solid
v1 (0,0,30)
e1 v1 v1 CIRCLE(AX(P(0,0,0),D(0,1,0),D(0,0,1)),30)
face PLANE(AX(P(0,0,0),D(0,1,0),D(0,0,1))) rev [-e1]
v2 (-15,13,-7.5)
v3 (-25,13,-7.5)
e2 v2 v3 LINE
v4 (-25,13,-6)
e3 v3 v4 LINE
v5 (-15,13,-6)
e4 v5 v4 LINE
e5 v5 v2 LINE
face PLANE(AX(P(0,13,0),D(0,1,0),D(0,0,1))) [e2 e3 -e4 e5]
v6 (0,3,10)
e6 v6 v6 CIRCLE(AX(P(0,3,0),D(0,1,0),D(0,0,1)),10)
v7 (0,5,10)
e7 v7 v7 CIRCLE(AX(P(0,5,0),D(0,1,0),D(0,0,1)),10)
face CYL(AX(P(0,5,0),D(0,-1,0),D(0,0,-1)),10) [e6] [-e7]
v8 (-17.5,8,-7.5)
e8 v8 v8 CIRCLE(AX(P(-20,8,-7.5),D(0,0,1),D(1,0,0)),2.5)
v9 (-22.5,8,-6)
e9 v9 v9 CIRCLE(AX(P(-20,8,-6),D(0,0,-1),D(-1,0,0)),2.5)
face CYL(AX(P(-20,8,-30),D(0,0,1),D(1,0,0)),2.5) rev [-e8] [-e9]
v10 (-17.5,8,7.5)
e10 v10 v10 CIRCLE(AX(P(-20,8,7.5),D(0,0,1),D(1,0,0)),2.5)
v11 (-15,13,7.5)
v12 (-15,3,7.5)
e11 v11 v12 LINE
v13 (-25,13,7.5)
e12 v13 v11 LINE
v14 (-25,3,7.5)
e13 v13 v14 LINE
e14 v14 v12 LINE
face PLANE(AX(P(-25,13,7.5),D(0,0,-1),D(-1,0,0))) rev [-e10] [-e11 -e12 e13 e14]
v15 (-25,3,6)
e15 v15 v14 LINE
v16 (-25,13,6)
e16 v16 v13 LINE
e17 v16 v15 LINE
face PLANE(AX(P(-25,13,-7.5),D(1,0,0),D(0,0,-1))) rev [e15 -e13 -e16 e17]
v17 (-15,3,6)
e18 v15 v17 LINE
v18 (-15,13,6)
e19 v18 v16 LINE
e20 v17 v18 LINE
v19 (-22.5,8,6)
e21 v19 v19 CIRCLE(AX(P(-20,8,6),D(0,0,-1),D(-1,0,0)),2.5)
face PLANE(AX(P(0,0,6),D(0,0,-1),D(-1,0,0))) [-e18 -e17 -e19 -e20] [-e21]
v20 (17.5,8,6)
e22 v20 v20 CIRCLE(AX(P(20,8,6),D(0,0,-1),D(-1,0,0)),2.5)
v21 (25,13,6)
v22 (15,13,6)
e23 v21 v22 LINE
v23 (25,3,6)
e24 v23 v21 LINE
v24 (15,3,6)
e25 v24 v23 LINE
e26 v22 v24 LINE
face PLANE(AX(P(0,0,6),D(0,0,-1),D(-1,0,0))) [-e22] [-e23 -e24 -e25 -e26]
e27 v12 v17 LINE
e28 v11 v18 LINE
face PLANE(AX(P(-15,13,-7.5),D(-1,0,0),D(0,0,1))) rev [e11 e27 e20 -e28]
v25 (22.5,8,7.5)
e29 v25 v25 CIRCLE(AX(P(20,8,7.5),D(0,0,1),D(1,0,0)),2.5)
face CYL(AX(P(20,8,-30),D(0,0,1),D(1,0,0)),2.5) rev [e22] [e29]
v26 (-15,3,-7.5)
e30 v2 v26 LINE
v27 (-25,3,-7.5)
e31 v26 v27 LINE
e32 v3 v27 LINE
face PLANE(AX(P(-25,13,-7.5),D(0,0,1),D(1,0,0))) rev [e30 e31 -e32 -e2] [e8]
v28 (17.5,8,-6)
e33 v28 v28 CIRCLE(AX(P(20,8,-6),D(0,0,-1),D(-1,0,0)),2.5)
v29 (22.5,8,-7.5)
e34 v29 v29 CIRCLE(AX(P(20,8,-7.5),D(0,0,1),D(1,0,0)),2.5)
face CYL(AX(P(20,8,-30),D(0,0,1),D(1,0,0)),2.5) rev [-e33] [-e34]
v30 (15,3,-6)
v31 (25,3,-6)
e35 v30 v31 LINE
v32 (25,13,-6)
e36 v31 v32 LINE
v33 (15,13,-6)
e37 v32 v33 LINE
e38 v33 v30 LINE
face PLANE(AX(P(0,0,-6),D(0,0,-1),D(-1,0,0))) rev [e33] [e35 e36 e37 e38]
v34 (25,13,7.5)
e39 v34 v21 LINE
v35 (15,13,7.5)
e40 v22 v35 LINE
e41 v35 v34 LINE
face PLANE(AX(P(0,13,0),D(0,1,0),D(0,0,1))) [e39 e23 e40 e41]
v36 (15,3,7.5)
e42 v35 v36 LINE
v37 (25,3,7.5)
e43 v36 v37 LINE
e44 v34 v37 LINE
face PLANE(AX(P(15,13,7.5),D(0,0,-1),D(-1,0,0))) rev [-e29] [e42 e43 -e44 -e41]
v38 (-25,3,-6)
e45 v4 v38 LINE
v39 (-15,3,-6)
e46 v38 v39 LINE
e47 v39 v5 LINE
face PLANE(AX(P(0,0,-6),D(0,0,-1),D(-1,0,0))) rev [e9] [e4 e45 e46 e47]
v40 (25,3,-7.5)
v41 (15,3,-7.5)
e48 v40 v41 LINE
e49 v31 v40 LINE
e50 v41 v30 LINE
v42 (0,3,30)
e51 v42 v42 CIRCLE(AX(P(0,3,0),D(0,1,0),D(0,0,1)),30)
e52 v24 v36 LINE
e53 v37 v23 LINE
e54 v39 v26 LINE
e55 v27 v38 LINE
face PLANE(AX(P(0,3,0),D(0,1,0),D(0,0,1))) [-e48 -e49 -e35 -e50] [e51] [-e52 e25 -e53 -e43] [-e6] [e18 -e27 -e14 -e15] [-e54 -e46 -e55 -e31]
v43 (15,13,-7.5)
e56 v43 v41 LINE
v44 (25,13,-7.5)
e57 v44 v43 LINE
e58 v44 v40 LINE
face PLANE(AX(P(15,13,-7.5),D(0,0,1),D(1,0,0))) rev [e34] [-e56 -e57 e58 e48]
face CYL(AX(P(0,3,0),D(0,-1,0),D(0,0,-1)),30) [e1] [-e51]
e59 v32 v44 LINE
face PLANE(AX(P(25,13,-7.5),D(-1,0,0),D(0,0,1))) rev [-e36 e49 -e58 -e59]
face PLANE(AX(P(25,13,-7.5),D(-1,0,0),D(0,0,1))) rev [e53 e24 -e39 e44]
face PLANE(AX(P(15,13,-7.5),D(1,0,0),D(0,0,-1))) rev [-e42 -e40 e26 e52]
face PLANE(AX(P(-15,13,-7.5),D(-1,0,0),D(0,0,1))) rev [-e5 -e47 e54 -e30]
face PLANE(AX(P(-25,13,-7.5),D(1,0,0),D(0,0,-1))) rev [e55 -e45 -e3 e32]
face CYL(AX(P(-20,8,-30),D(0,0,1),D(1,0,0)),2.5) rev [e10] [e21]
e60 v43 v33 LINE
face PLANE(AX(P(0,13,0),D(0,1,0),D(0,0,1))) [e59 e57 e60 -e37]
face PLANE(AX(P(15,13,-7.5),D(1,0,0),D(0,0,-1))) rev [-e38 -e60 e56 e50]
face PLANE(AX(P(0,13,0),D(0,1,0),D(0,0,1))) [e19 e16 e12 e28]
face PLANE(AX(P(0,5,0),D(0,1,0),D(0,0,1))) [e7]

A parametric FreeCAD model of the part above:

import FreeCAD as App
import Part
import Sketcher

V = App.Vector
Q = App.Units.Quantity


def add_polygon(sketch, points):
    """Adds a closed chain of lines whose ends are joined by coincident constraints."""
    first, n = sketch.GeometryCount, len(points)
    for a, b in zip(points, points[1:] + points[:1]):
        sketch.addGeometry(Part.LineSegment(App.Vector(*a, 0), App.Vector(*b, 0)), False)
    for i in range(n):
        sketch.addConstraint(Sketcher.Constraint("Coincident", first + i, 2, first + (i + 1) % n, 1))

doc = App.newDocument("Part")
body = doc.addObject("PartDesign::Body", "Body")

sketch1 = body.newObject("Sketcher::SketchObject", "Sketch")
sketch1.AttachmentSupport = (doc.getObject("XZ_Plane"), [""])
sketch1.MapMode = "FlatFace"
sketch1.addGeometry(Part.Circle(V(0, 0, 0), V(0, 0, 1), 30), False)
sketch1.addConstraint(Sketcher.Constraint("Coincident", 0, 3, -1, 1))
sketch1.addConstraint(Sketcher.Constraint("Diameter", 0, Q("60 mm")))
pad1 = body.newObject("PartDesign::Pad", "Pad")
pad1.Profile = sketch1
pad1.Length = 3
pad1.Reversed = True

sketch2 = body.newObject("Sketcher::SketchObject", "Sketch001")
sketch2.AttachmentSupport = (doc.getObject("XZ_Plane"), [""])
sketch2.MapMode = "FlatFace"
sketch2.AttachmentOffset = App.Placement(V(0, 0, -3), App.Rotation())
sketch2.addGeometry(Part.Circle(V(0, 0, 0), V(0, 0, 1), 10), False)
sketch2.addConstraint(Sketcher.Constraint("Coincident", 0, 3, -1, 1))
sketch2.addConstraint(Sketcher.Constraint("Diameter", 0, Q("20 mm")))
pad2 = body.newObject("PartDesign::Pad", "Pad001")
pad2.Profile = sketch2
pad2.Length = 2
pad2.Reversed = True

sketch3 = body.newObject("Sketcher::SketchObject", "Sketch002")
sketch3.AttachmentSupport = (doc.getObject("XZ_Plane"), [""])
sketch3.MapMode = "FlatFace"
sketch3.AttachmentOffset = App.Placement(V(0, 0, -3), App.Rotation())
add_polygon(sketch3, [(-25, -8), (-25, 8), (-15, 8), (-15, -8)])
add_polygon(sketch3, [(15, -8), (15, 8), (25, 8), (25, -8)])
sketch3.addConstraint(Sketcher.Constraint("Vertical", 0))
sketch3.addConstraint(Sketcher.Constraint("Horizontal", 1))
sketch3.addConstraint(Sketcher.Constraint("Vertical", 2))
sketch3.addConstraint(Sketcher.Constraint("Horizontal", 3))
sketch3.addConstraint(Sketcher.Constraint("Vertical", 4))
sketch3.addConstraint(Sketcher.Constraint("Horizontal", 5))
sketch3.addConstraint(Sketcher.Constraint("Vertical", 6))
sketch3.addConstraint(Sketcher.Constraint("Horizontal", 7))
sketch3.addConstraint(Sketcher.Constraint("Symmetric", 2, 2, 4, 2, -1, 1))
sketch3.addConstraint(Sketcher.Constraint("Symmetric", 0, 2, 6, 2, -1, 1))
sketch3.addConstraint(Sketcher.Constraint("Horizontal", 1, 2, 4, 2))
sketch3.addConstraint(Sketcher.Constraint("DistanceX", 1, 1, 1, 2, Q("10 mm")))
sketch3.addConstraint(Sketcher.Constraint("DistanceY", 0, 1, 0, 2, Q("15 mm")))
sketch3.addConstraint(Sketcher.Constraint("DistanceX", 0, 2, -1, 1, Q("25 mm")))
pad3 = body.newObject("PartDesign::Pad", "Pad002")
pad3.Profile = sketch3
pad3.Length = 10
pad3.Reversed = True

sketch4 = body.newObject("Sketcher::SketchObject", "Sketch003")
sketch4.AttachmentSupport = (doc.getObject("XY_Plane"), [""])
sketch4.MapMode = "FlatFace"
sketch4.AttachmentOffset = App.Placement(V(0, 0, 6), App.Rotation())
add_polygon(sketch4, [(-25, 13), (-25, 3), (-15, 3), (-15, 13)])
add_polygon(sketch4, [(15, 13), (15, 3), (25, 3), (25, 13)])
sketch4.addConstraint(Sketcher.Constraint("Vertical", 0))
sketch4.addConstraint(Sketcher.Constraint("Horizontal", 1))
sketch4.addConstraint(Sketcher.Constraint("Vertical", 2))
sketch4.addConstraint(Sketcher.Constraint("Horizontal", 3))
sketch4.addConstraint(Sketcher.Constraint("Vertical", 4))
sketch4.addConstraint(Sketcher.Constraint("Horizontal", 5))
sketch4.addConstraint(Sketcher.Constraint("Vertical", 6))
sketch4.addConstraint(Sketcher.Constraint("Horizontal", 7))
sketch4.addConstraint(Sketcher.Constraint("Symmetric", 1, 2, 4, 2, -2))
sketch4.addConstraint(Sketcher.Constraint("Symmetric", 3, 2, 6, 2, -2))
sketch4.addConstraint(Sketcher.Constraint("Equal", 7, 0))
sketch4.addConstraint(Sketcher.Constraint("DistanceX", 1, 1, 1, 2, Q("10 mm")))
sketch4.addConstraint(Sketcher.Constraint("DistanceX", 0, 2, -1, 1, Q("25 mm")))
sketch4.addConstraint(Sketcher.Constraint("DistanceY", -1, 1, 0, 2, Q("3 mm")))
pocket1 = body.newObject("PartDesign::Pocket", "Pocket")
pocket1.Profile = sketch4
pocket1.Length = 12

sketch5 = body.newObject("Sketcher::SketchObject", "Sketch004")
sketch5.AttachmentSupport = (doc.getObject("XY_Plane"), [""])
sketch5.MapMode = "FlatFace"
sketch5.AttachmentOffset = App.Placement(V(0, 0, 7.5), App.Rotation())
sketch5.addGeometry(Part.Circle(V(20, 8, 0), V(0, 0, 1), 2.5), False)
sketch5.addGeometry(Part.Circle(V(-20, 8, 0), V(0, 0, 1), 2.5), False)
sketch5.addConstraint(Sketcher.Constraint("Equal", 0, 1))
sketch5.addConstraint(Sketcher.Constraint("Symmetric", 0, 3, 1, 3, -2))
sketch5.addConstraint(Sketcher.Constraint("Diameter", 0, Q("5 mm")))
sketch5.addConstraint(Sketcher.Constraint("DistanceX", -1, 1, 0, 3, Q("20 mm")))
sketch5.addConstraint(Sketcher.Constraint("DistanceY", -1, 1, 0, 3, Q("8 mm")))
pocket2 = body.newObject("PartDesign::Pocket", "Pocket001")
pocket2.Profile = sketch5
pocket2.Type = "ThroughAll"

doc.recompute()
